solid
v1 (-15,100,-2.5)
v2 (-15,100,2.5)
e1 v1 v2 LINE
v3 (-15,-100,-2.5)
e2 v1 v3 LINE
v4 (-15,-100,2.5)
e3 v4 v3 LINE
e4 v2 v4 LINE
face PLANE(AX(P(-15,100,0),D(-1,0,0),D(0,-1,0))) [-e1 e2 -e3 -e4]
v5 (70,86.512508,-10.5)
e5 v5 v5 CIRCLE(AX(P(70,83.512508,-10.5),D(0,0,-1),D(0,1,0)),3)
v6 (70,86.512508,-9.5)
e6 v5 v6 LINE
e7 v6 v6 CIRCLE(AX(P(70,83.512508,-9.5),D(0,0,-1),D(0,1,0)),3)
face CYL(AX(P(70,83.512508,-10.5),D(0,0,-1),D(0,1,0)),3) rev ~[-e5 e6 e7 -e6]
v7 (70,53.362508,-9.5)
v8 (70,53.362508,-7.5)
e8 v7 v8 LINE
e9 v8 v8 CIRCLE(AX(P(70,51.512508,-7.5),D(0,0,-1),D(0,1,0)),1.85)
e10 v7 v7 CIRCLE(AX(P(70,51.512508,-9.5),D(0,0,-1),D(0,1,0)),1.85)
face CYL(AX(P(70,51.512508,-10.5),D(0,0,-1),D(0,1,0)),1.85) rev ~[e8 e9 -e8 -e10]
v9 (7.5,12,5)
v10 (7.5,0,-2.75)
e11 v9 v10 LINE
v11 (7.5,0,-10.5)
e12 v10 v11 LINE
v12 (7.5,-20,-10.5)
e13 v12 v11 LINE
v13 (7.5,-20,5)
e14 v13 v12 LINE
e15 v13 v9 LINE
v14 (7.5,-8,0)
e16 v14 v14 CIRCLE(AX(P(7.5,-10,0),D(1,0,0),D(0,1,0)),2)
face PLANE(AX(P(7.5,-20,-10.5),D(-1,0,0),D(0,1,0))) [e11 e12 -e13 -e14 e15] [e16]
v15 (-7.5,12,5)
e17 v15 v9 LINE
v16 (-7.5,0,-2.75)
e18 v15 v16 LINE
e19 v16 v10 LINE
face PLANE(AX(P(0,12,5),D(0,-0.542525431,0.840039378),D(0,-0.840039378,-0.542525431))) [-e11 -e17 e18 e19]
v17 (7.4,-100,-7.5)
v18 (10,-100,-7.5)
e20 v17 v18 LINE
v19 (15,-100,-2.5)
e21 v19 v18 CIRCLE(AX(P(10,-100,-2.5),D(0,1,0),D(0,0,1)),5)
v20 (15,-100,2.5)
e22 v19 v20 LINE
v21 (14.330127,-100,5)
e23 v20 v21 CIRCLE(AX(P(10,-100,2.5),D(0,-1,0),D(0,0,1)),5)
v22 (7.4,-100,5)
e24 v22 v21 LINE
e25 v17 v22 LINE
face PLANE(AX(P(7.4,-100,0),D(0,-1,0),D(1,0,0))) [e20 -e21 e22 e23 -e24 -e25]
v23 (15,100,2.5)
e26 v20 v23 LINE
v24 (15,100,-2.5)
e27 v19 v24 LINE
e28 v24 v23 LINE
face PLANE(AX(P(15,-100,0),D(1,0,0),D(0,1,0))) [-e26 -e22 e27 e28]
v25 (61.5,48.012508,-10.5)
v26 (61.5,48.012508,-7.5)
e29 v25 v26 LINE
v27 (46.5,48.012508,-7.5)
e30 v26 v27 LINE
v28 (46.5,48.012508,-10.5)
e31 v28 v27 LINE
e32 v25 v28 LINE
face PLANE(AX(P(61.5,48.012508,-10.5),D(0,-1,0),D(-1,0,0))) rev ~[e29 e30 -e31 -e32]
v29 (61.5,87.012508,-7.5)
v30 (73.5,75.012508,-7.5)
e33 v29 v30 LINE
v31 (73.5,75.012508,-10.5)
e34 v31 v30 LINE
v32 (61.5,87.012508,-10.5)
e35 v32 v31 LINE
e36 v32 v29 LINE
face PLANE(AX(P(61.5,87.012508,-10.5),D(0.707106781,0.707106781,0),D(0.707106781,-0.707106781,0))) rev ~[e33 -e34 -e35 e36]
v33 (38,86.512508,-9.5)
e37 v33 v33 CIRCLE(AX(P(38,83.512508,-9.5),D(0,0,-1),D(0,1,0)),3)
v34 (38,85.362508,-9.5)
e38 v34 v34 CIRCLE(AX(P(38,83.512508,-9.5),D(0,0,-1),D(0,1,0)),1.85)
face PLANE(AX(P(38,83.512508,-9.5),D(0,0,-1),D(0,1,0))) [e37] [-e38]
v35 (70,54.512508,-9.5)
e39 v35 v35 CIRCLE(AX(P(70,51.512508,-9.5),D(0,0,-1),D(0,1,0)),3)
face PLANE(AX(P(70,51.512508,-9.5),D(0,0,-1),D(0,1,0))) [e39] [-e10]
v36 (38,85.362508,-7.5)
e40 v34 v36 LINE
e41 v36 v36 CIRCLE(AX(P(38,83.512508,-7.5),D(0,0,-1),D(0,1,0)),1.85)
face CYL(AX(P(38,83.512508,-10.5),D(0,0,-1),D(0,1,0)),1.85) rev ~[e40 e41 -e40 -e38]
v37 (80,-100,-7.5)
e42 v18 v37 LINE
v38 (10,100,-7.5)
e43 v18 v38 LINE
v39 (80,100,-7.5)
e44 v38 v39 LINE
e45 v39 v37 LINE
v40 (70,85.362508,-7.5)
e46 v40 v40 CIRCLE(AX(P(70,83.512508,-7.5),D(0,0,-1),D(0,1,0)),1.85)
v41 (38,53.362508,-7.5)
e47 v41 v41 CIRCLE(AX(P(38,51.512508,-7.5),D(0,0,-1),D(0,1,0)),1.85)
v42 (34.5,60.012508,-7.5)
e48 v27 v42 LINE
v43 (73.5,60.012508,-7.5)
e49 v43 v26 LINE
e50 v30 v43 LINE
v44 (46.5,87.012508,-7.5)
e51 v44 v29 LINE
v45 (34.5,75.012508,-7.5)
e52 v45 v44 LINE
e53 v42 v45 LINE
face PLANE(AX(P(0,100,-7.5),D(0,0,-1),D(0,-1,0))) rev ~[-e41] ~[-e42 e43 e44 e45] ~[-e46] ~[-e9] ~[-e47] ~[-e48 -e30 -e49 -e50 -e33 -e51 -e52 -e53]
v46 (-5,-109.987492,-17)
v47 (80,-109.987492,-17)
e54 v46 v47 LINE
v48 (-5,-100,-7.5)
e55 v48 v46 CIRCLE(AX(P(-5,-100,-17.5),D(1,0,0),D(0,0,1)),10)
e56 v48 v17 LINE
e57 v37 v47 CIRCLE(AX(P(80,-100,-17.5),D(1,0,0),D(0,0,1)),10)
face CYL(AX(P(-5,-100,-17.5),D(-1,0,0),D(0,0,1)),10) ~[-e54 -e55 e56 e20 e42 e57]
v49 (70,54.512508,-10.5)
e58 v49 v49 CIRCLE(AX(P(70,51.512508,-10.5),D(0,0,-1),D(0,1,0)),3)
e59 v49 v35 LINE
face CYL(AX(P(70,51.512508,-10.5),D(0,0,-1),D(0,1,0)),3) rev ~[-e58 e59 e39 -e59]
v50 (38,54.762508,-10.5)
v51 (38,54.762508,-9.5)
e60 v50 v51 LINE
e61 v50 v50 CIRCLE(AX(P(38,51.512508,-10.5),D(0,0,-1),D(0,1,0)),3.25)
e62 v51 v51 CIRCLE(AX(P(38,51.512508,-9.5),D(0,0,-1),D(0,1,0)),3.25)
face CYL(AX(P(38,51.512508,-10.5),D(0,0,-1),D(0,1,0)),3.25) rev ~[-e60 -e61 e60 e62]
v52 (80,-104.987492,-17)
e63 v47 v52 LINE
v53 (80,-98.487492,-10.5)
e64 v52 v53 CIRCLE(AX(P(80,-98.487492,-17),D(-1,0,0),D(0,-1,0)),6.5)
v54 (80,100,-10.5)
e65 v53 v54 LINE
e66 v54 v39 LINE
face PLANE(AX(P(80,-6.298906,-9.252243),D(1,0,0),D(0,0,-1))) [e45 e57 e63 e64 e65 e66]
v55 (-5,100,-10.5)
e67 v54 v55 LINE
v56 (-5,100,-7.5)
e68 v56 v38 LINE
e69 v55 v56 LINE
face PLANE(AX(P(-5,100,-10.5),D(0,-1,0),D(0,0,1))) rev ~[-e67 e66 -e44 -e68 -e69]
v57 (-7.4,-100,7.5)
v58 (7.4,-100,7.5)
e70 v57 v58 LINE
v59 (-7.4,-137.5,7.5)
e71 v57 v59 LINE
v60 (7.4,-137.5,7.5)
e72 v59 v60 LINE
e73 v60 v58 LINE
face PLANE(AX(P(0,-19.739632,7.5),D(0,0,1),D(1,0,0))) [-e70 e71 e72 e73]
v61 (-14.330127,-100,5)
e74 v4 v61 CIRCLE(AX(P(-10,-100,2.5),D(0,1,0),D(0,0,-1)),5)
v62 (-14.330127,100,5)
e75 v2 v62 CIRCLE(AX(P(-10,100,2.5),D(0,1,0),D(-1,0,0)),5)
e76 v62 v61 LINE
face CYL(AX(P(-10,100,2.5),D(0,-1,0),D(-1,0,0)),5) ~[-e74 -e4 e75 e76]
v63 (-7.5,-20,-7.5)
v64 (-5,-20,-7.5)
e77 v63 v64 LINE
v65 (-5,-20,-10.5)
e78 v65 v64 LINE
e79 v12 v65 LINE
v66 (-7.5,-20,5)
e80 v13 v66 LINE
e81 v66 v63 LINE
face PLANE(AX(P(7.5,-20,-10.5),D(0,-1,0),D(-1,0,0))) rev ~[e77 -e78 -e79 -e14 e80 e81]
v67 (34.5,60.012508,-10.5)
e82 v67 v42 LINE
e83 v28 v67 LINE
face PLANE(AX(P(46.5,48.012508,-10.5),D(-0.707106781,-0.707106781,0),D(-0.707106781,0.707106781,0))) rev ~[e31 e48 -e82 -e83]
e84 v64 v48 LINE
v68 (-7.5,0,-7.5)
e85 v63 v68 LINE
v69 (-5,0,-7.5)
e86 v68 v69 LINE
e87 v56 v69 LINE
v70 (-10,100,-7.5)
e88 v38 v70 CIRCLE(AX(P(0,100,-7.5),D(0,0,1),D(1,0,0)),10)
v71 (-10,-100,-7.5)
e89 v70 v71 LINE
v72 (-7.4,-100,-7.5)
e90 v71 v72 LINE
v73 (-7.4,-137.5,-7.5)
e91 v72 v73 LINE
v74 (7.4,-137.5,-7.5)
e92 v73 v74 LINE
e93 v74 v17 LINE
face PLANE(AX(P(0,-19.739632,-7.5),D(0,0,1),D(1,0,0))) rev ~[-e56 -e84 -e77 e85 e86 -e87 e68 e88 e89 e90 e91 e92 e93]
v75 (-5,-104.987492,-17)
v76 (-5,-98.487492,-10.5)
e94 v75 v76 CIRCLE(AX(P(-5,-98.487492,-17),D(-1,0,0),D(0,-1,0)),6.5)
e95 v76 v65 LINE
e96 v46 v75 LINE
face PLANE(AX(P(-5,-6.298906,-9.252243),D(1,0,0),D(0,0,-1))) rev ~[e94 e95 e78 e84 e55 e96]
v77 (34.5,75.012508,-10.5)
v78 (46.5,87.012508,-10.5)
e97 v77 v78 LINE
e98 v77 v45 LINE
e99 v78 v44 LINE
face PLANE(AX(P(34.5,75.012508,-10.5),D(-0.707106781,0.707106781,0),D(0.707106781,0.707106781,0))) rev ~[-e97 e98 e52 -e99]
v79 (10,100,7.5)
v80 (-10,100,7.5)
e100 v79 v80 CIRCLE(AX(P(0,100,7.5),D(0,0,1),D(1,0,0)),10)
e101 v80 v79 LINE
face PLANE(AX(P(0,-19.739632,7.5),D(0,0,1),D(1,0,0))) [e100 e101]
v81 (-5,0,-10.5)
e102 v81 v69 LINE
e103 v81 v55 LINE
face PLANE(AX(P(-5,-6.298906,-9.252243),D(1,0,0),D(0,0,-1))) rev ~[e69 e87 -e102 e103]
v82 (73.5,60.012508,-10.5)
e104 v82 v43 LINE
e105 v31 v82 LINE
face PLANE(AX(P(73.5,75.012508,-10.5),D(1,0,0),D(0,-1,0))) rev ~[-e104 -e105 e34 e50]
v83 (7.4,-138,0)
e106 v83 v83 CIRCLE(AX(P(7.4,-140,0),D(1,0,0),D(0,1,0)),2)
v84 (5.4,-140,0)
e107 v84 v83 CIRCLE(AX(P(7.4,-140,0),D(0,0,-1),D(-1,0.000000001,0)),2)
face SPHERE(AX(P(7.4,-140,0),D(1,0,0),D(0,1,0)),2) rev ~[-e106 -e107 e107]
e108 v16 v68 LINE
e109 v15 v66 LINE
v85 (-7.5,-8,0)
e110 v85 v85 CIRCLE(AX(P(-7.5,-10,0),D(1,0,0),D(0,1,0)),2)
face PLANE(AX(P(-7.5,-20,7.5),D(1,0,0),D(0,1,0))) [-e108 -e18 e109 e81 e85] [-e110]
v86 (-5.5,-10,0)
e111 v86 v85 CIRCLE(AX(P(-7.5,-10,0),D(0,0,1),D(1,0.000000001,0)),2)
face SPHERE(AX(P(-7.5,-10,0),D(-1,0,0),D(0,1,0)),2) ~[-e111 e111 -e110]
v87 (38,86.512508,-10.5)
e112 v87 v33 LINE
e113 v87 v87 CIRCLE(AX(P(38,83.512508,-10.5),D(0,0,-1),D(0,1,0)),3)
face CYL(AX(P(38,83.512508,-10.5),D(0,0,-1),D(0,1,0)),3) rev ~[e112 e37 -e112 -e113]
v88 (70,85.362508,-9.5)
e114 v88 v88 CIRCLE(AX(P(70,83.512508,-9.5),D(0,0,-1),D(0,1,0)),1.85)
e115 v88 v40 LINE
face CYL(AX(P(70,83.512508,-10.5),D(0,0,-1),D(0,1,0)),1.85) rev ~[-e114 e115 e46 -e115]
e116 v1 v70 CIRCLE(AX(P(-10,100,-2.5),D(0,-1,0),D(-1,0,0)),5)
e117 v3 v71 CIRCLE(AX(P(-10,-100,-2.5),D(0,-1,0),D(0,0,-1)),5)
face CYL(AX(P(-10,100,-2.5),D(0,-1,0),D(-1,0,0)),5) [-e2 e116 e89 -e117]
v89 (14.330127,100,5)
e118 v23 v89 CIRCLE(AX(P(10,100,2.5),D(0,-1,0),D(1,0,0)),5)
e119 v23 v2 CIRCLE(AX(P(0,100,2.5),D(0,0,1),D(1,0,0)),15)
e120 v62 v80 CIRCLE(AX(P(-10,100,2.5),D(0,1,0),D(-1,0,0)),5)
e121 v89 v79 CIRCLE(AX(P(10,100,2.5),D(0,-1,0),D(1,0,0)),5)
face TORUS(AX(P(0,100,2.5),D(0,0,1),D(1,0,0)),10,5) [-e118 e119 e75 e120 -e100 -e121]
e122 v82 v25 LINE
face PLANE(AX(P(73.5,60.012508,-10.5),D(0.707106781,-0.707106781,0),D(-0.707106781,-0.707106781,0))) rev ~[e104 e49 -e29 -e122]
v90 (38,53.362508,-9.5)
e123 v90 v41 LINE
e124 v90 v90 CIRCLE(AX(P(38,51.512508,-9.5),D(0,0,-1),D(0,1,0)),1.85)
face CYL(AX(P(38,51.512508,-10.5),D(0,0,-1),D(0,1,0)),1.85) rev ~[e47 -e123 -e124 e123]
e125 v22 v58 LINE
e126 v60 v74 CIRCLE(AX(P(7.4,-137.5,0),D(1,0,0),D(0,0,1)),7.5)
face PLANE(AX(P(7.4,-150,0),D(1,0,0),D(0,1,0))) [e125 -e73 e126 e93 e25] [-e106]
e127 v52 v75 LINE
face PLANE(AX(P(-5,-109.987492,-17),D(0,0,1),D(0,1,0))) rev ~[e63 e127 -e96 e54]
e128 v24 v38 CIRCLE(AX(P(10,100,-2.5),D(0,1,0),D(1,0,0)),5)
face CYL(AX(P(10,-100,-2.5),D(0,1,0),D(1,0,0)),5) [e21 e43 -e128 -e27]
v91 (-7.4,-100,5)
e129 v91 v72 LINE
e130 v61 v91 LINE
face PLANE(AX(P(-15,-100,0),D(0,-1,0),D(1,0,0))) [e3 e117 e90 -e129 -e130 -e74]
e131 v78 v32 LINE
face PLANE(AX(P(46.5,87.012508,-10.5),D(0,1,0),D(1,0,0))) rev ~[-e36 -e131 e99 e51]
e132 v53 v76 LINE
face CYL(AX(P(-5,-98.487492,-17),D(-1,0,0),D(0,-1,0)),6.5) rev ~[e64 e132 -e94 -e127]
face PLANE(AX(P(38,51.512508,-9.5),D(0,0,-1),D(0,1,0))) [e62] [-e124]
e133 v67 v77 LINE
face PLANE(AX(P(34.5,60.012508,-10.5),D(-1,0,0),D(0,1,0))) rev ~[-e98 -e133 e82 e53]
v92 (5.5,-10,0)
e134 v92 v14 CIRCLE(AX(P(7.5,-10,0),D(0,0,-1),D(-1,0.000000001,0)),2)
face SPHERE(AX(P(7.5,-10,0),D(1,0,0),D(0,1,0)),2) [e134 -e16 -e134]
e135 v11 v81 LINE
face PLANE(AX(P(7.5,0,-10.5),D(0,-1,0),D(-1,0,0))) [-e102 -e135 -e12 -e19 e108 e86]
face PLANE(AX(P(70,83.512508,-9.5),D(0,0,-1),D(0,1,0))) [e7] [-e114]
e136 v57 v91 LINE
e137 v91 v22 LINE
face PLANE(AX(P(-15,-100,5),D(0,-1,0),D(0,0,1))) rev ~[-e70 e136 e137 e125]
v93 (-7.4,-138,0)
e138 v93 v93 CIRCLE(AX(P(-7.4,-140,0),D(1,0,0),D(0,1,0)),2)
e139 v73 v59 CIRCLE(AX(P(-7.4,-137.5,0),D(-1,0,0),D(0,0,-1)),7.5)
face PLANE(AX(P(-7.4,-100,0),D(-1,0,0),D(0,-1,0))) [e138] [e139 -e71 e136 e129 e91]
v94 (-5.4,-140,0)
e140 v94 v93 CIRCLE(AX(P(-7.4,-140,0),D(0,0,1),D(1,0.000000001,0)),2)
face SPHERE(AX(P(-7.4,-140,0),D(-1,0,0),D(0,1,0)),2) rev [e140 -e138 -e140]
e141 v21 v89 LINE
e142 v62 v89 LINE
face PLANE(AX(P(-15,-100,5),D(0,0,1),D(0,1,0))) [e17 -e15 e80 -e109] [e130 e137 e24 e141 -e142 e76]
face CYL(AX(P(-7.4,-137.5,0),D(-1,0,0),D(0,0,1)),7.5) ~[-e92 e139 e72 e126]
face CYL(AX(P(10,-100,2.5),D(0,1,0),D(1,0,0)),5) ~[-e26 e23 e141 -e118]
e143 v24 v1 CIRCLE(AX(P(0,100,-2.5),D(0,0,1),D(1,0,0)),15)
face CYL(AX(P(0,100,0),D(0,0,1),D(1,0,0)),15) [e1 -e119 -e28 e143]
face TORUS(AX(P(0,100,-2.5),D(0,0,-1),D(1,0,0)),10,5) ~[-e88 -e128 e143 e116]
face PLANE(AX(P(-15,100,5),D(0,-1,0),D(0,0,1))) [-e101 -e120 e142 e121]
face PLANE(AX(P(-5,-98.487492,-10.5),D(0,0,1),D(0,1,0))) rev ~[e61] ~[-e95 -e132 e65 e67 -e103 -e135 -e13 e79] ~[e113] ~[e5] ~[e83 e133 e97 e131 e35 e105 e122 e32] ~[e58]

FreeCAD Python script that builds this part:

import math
import FreeCAD as App
import Part
import Sketcher

V = App.Vector


def edges_at(feature, points):
    """Names of the edges that pass closest to the given points."""
    edges = feature.Shape.Edges
    near = lambda p: min(range(len(edges)), key=lambda i: edges[i].distToShape(Part.Vertex(*p))[0])
    return sorted({f"Edge{near(p) + 1}" for p in points})


def add_polygon(sketch, points):
    """Adds a closed chain of lines whose ends are joined by coincident constraints."""
    first, n = sketch.GeometryCount, len(points)
    for a, b in zip(points, points[1:] + points[:1]):
        sketch.addGeometry(Part.LineSegment(App.Vector(*a, 0), App.Vector(*b, 0)), False)
    for i in range(n):
        sketch.addConstraint(Sketcher.Constraint("Coincident", first + i, 2, first + (i + 1) % n, 1))

doc = App.newDocument("Part")
body = doc.addObject("PartDesign::Body", "Body")

# Sketch on XY plane
sketch1 = body.newObject("Sketcher::SketchObject", "Sketch")
sketch1.AttachmentSupport = (doc.getObject("XY_Plane"), [""])
sketch1.MapMode = "FlatFace"
sketch1.addGeometry(Part.LineSegment(V(-7.4, -150, 0), V(7.4, -150, 0)), False)
sketch1.addGeometry(Part.LineSegment(V(7.4, -150, 0), V(7.4, -100, 0)), False)
sketch1.addGeometry(Part.LineSegment(V(7.4, -100, 0), V(15, -100, 0)), False)
sketch1.addGeometry(Part.LineSegment(V(15, -100, 0), V(15, 100, 0)), False)
sketch1.addGeometry(Part.ArcOfCircle(Part.Circle(V(0, 100, 0), V(0, 0, 1), 15), math.radians(0), math.radians(180)), False)
sketch1.addGeometry(Part.LineSegment(V(-15, 100, 0), V(-15, -100, 0)), False)
sketch1.addGeometry(Part.LineSegment(V(-15, -100, 0), V(-7.4, -100, 0)), False)
sketch1.addGeometry(Part.LineSegment(V(-7.4, -100, 0), V(-7.4, -150, 0)), False)
sketch1.addConstraint(Sketcher.Constraint("Coincident", 0, 2, 1, 1))
sketch1.addConstraint(Sketcher.Constraint("Coincident", 1, 2, 2, 1))
sketch1.addConstraint(Sketcher.Constraint("Coincident", 2, 2, 3, 1))
sketch1.addConstraint(Sketcher.Constraint("Tangent", 3, 2, 4, 1))
sketch1.addConstraint(Sketcher.Constraint("Tangent", 4, 2, 5, 1))
sketch1.addConstraint(Sketcher.Constraint("Coincident", 5, 2, 6, 1))
sketch1.addConstraint(Sketcher.Constraint("Coincident", 6, 2, 7, 1))
sketch1.addConstraint(Sketcher.Constraint("Coincident", 7, 2, 0, 1))
sketch1.addConstraint(Sketcher.Constraint("Horizontal", 0))
sketch1.addConstraint(Sketcher.Constraint("Vertical", 1))
sketch1.addConstraint(Sketcher.Constraint("Horizontal", 2))
sketch1.addConstraint(Sketcher.Constraint("Vertical", 3))
sketch1.addConstraint(Sketcher.Constraint("Vertical", 5))
sketch1.addConstraint(Sketcher.Constraint("Horizontal", 6))
sketch1.addConstraint(Sketcher.Constraint("Vertical", 7))
sketch1.addConstraint(Sketcher.Constraint("Symmetric", 2, 2, 4, 2, -1, 1))
sketch1.addConstraint(Sketcher.Constraint("Symmetric", 1, 2, 6, 2, -2))
sketch1.addConstraint(Sketcher.Constraint("Radius", 4, 15.0))
sketch1.addConstraint(Sketcher.Constraint("DistanceY", 1, 1, 1, 2, 50.0))
sketch1.addConstraint(Sketcher.Constraint("DistanceY", 3, 1, 3, 2, 200.0))
sketch1.addConstraint(Sketcher.Constraint("DistanceX", 0, 1, 0, 2, 14.8))
pad1 = body.newObject("PartDesign::Pad", "Pad")
pad1.Profile = sketch1
pad1.Length = 15
pad1.Midplane = True
doc.recompute()

fillet = body.newObject("PartDesign::Fillet", "Fillet")
fillet.Base = (pad1, edges_at(pad1, [
    (7.4, -150, 0),
    (-7.4, -150, 0),
    (15, 0, 7.5),
    (0, 115, 7.5),
    (-15, 0, 7.5),
    (-15, 0, -7.5),
    (0, 115, -7.5),
    (15, 0, -7.5),
]))
fillet.Radius = 5

# Sketch on XY plane
sketch2 = body.newObject("Sketcher::SketchObject", "Sketch001")
sketch2.AttachmentSupport = (doc.getObject("XY_Plane"), [""])
sketch2.MapMode = "FlatFace"
sketch2.AttachmentOffset = App.Placement(V(0, 0, 7.5), App.Rotation())
add_polygon(sketch2, [(-7.5, 0), (-7.5, -20), (7.5, -20), (7.5, 0)])  # lines 0-3
sketch2.addConstraint(Sketcher.Constraint("Vertical", 0))
sketch2.addConstraint(Sketcher.Constraint("Horizontal", 1))
sketch2.addConstraint(Sketcher.Constraint("Vertical", 2))
sketch2.addConstraint(Sketcher.Constraint("Horizontal", 3))
sketch2.addConstraint(Sketcher.Constraint("Symmetric", 2, 2, 3, 2, -1, 1))
sketch2.addConstraint(Sketcher.Constraint("DistanceX", 1, 1, 1, 2, 15.0))
sketch2.addConstraint(Sketcher.Constraint("DistanceY", 0, 2, 0, 1, 20.0))
pocket1 = body.newObject("PartDesign::Pocket", "Pocket")
pocket1.Profile = sketch2
pocket1.Type = "ThroughAll"

# Sketch on XY plane
sketch3 = body.newObject("Sketcher::SketchObject", "Sketch002")
sketch3.AttachmentSupport = (doc.getObject("XY_Plane"), [""])
sketch3.MapMode = "FlatFace"
sketch3.addGeometry(Part.LineSegment(V(-7.5, -10, 0), V(-5.5, -10, 0)), False)
sketch3.addGeometry(Part.ArcOfCircle(Part.Circle(V(-7.5, -10, 0), V(0, 0, 1), 2), math.radians(0), math.radians(90)), False)
sketch3.addGeometry(Part.LineSegment(V(-7.5, -8, 0), V(-7.5, -10, 0)), False)
sketch3.addGeometry(Part.LineSegment(V(5.5, -10, 0), V(7.5, -10, 0)), False)
sketch3.addGeometry(Part.LineSegment(V(7.5, -10, 0), V(7.5, -8, 0)), False)
sketch3.addGeometry(Part.ArcOfCircle(Part.Circle(V(7.5, -10, 0), V(0, 0, 1), 2), math.radians(90), math.radians(180)), False)
sketch3.addGeometry(Part.LineSegment(V(-7.5, -10, 0), V(7.5, -10, 0)), True)  # axis
sketch3.addConstraint(Sketcher.Constraint("Coincident", 0, 2, 1, 1))
sketch3.addConstraint(Sketcher.Constraint("Coincident", 1, 2, 2, 1))
sketch3.addConstraint(Sketcher.Constraint("Coincident", 2, 2, 0, 1))
sketch3.addConstraint(Sketcher.Constraint("Coincident", 3, 2, 4, 1))
sketch3.addConstraint(Sketcher.Constraint("Coincident", 4, 2, 5, 1))
sketch3.addConstraint(Sketcher.Constraint("Coincident", 5, 2, 3, 1))
sketch3.addConstraint(Sketcher.Constraint("Horizontal", 0))
sketch3.addConstraint(Sketcher.Constraint("Vertical", 2))
sketch3.addConstraint(Sketcher.Constraint("Horizontal", 3))
sketch3.addConstraint(Sketcher.Constraint("Vertical", 4))
sketch3.addConstraint(Sketcher.Constraint("Horizontal", 6))
sketch3.addConstraint(Sketcher.Constraint("Coincident", 2, 2, 1, 3))
sketch3.addConstraint(Sketcher.Constraint("Coincident", 3, 2, 5, 3))
sketch3.addConstraint(Sketcher.Constraint("Coincident", 6, 1, 1, 3))
sketch3.addConstraint(Sketcher.Constraint("Coincident", 6, 2, 5, 3))
sketch3.addConstraint(Sketcher.Constraint("Equal", 1, 5))
sketch3.addConstraint(Sketcher.Constraint("Radius", 1, 2.0))
sketch3.addConstraint(Sketcher.Constraint("DistanceX", 6, 1, 6, 2, 15.0))
sketch3.addConstraint(Sketcher.Constraint("DistanceY", 1, 3, -1, 1, 10.0))
sketch3.addConstraint(Sketcher.Constraint("DistanceX", 1, 3, -1, 1, 7.5))
revolution = body.newObject("PartDesign::Revolution", "Revolution")
revolution.Profile = sketch3
revolution.ReferenceAxis = (sketch3, ["Axis0"])
revolution.Angle = 360

# Sketch on XY plane
sketch4 = body.newObject("Sketcher::SketchObject", "Sketch003")
sketch4.AttachmentSupport = (doc.getObject("XY_Plane"), [""])
sketch4.MapMode = "FlatFace"
sketch4.addGeometry(Part.LineSegment(V(-7.4, -138, 0), V(-7.4, -140, 0)), False)
sketch4.addGeometry(Part.LineSegment(V(-7.4, -140, 0), V(-5.4, -140, 0)), False)
sketch4.addGeometry(Part.ArcOfCircle(Part.Circle(V(-7.4, -140, 0), V(0, 0, 1), 2), math.radians(0), math.radians(90)), False)
sketch4.addGeometry(Part.LineSegment(V(7.4, -140, 0), V(7.4, -138, 0)), False)
sketch4.addGeometry(Part.ArcOfCircle(Part.Circle(V(7.4, -140, 0), V(0, 0, 1), 2), math.radians(90), math.radians(180)), False)
sketch4.addGeometry(Part.LineSegment(V(5.4, -140, 0), V(7.4, -140, 0)), False)
sketch4.addGeometry(Part.LineSegment(V(-7.4, -140, 0), V(7.4, -140, 0)), True)  # axis
sketch4.addConstraint(Sketcher.Constraint("Coincident", 0, 2, 1, 1))
sketch4.addConstraint(Sketcher.Constraint("Coincident", 1, 2, 2, 1))
sketch4.addConstraint(Sketcher.Constraint("Coincident", 2, 2, 0, 1))
sketch4.addConstraint(Sketcher.Constraint("Coincident", 3, 2, 4, 1))
sketch4.addConstraint(Sketcher.Constraint("Coincident", 4, 2, 5, 1))
sketch4.addConstraint(Sketcher.Constraint("Coincident", 5, 2, 3, 1))
sketch4.addConstraint(Sketcher.Constraint("Vertical", 0))
sketch4.addConstraint(Sketcher.Constraint("Horizontal", 1))
sketch4.addConstraint(Sketcher.Constraint("Vertical", 3))
sketch4.addConstraint(Sketcher.Constraint("Horizontal", 5))
sketch4.addConstraint(Sketcher.Constraint("Horizontal", 6))
sketch4.addConstraint(Sketcher.Constraint("Coincident", 0, 2, 2, 3))
sketch4.addConstraint(Sketcher.Constraint("Coincident", 5, 2, 4, 3))
sketch4.addConstraint(Sketcher.Constraint("Coincident", 6, 1, 2, 3))
sketch4.addConstraint(Sketcher.Constraint("Coincident", 6, 2, 4, 3))
sketch4.addConstraint(Sketcher.Constraint("Equal", 2, 4))
sketch4.addConstraint(Sketcher.Constraint("Radius", 2, 2.0))
sketch4.addConstraint(Sketcher.Constraint("DistanceX", 6, 1, 6, 2, 14.8))
sketch4.addConstraint(Sketcher.Constraint("DistanceY", 2, 3, -1, 1, 140.0))
sketch4.addConstraint(Sketcher.Constraint("DistanceX", 2, 3, -1, 1, 7.4))
groove = body.newObject("PartDesign::Groove", "Groove")
groove.Profile = sketch4
groove.ReferenceAxis = (sketch4, ["Axis0"])
groove.Angle = 360

# Sketch on YZ plane
sketch5 = body.newObject("Sketcher::SketchObject", "Sketch004")
sketch5.AttachmentSupport = (doc.getObject("YZ_Plane"), [""])
sketch5.MapMode = "FlatFace"
sketch5.AttachmentOffset = App.Placement(V(0, 0, -7.4), App.Rotation())
sketch5.addGeometry(Part.LineSegment(V(-137.5, -7.5, 0), V(-150, -7.5, 0)), False)
sketch5.addGeometry(Part.LineSegment(V(-150, -7.5, 0), V(-150, 7.5, 0)), False)
sketch5.addGeometry(Part.LineSegment(V(-150, 7.5, 0), V(-137.5, 7.5, 0)), False)
sketch5.addGeometry(Part.ArcOfCircle(Part.Circle(V(-137.5, 0, 0), V(0, 0, 1), 7.5), math.radians(90), math.radians(270)), False)
sketch5.addConstraint(Sketcher.Constraint("Coincident", 0, 2, 1, 1))
sketch5.addConstraint(Sketcher.Constraint("Coincident", 1, 2, 2, 1))
sketch5.addConstraint(Sketcher.Constraint("Tangent", 2, 2, 3, 1))
sketch5.addConstraint(Sketcher.Constraint("Tangent", 3, 2, 0, 1))
sketch5.addConstraint(Sketcher.Constraint("Horizontal", 0))
sketch5.addConstraint(Sketcher.Constraint("Vertical", 1))
sketch5.addConstraint(Sketcher.Constraint("Horizontal", 2))
sketch5.addConstraint(Sketcher.Constraint("PointOnObject", 3, 3, -1))
sketch5.addConstraint(Sketcher.Constraint("Radius", 3, 7.5))
sketch5.addConstraint(Sketcher.Constraint("DistanceX", 0, 2, 0, 1, 12.5))
sketch5.addConstraint(Sketcher.Constraint("DistanceX", 0, 2, -1, 1, 150.0))
pocket2 = body.newObject("PartDesign::Pocket", "Pocket001")
pocket2.Profile = sketch5
pocket2.Type = "ThroughAll"
pocket2.Reversed = True

# Sketch on YZ plane
sketch6 = body.newObject("Sketcher::SketchObject", "Sketch005")
sketch6.AttachmentSupport = (doc.getObject("YZ_Plane"), [""])
sketch6.MapMode = "FlatFace"
sketch6.addGeometry(Part.LineSegment(V(-109.987492, -17, 0), V(-104.987492, -17, 0)), False)
sketch6.addGeometry(Part.ArcOfCircle(Part.Circle(V(-98.487492, -17, 0), V(0, 0, 1), 6.5), math.radians(90), math.radians(180)), False)
sketch6.addGeometry(Part.LineSegment(V(-98.487492, -10.5, 0), V(100, -10.5, 0)), False)
sketch6.addGeometry(Part.LineSegment(V(100, -10.5, 0), V(100, -7.5, 0)), False)
sketch6.addGeometry(Part.LineSegment(V(100, -7.5, 0), V(-100, -7.5, 0)), False)
sketch6.addGeometry(Part.ArcOfCircle(Part.Circle(V(-100, -17.5, 0), V(0, 0, 1), 10), math.radians(90), math.radians(177.134016)), False)
sketch6.addConstraint(Sketcher.Constraint("Coincident", 0, 2, 1, 2))
sketch6.addConstraint(Sketcher.Constraint("Tangent", 1, 1, 2, 1))
sketch6.addConstraint(Sketcher.Constraint("Coincident", 2, 2, 3, 1))
sketch6.addConstraint(Sketcher.Constraint("Coincident", 3, 2, 4, 1))
sketch6.addConstraint(Sketcher.Constraint("Tangent", 4, 2, 5, 1))
sketch6.addConstraint(Sketcher.Constraint("Coincident", 5, 2, 0, 1))
sketch6.addConstraint(Sketcher.Constraint("Horizontal", 0))
sketch6.addConstraint(Sketcher.Constraint("Horizontal", 2))
sketch6.addConstraint(Sketcher.Constraint("Vertical", 3))
sketch6.addConstraint(Sketcher.Constraint("Horizontal", 4))
sketch6.addConstraint(Sketcher.Constraint("Horizontal", 1, 3, 0, 2))
sketch6.addConstraint(Sketcher.Constraint("Radius", 5, 10.0))
sketch6.addConstraint(Sketcher.Constraint("Radius", 1, 6.5))
sketch6.addConstraint(Sketcher.Constraint("DistanceX", 0, 1, 0, 2, 5.0))
sketch6.addConstraint(Sketcher.Constraint("DistanceX", 4, 2, 4, 1, 200.0))
sketch6.addConstraint(Sketcher.Constraint("DistanceY", 3, 1, 3, 2, 3.0))
sketch6.addConstraint(Sketcher.Constraint("DistanceY", 1, 3, -1, 1, 17.0))
sketch6.addConstraint(Sketcher.Constraint("DistanceX", 5, 3, -1, 1, 100.0))
pad2 = body.newObject("PartDesign::Pad", "Pad001")
pad2.Profile = sketch6
pad2.Length = 80

# Sketch on YZ plane
sketch7 = body.newObject("Sketcher::SketchObject", "Sketch006")
sketch7.AttachmentSupport = (doc.getObject("YZ_Plane"), [""])
sketch7.MapMode = "FlatFace"
sketch7.AttachmentOffset = App.Placement(V(0, 0, -5), App.Rotation())
sketch7.addGeometry(Part.LineSegment(V(100, -7.5, 0), V(100, -10.5, 0)), False)
sketch7.addGeometry(Part.LineSegment(V(100, -10.5, 0), V(-98.487492, -10.5, 0)), False)
sketch7.addGeometry(Part.ArcOfCircle(Part.Circle(V(-98.487492, -17, 0), V(0, 0, 1), 6.5), math.radians(90), math.radians(180)), False)
sketch7.addGeometry(Part.LineSegment(V(-104.987492, -17, 0), V(-109.987492, -17, 0)), False)
sketch7.addGeometry(Part.ArcOfCircle(Part.Circle(V(-100, -17.5, 0), V(0, 0, 1), 10), math.radians(90), math.radians(177.134016)), False)
sketch7.addGeometry(Part.LineSegment(V(-100, -7.5, 0), V(100, -7.5, 0)), False)
sketch7.addConstraint(Sketcher.Constraint("Coincident", 0, 2, 1, 1))
sketch7.addConstraint(Sketcher.Constraint("Tangent", 1, 2, 2, 1))
sketch7.addConstraint(Sketcher.Constraint("Coincident", 2, 2, 3, 1))
sketch7.addConstraint(Sketcher.Constraint("Coincident", 3, 2, 4, 2))
sketch7.addConstraint(Sketcher.Constraint("Tangent", 4, 1, 5, 1))
sketch7.addConstraint(Sketcher.Constraint("Coincident", 5, 2, 0, 1))
sketch7.addConstraint(Sketcher.Constraint("Vertical", 0))
sketch7.addConstraint(Sketcher.Constraint("Horizontal", 1))
sketch7.addConstraint(Sketcher.Constraint("Horizontal", 3))
sketch7.addConstraint(Sketcher.Constraint("Horizontal", 5))
sketch7.addConstraint(Sketcher.Constraint("Radius", 4, 10.0))
sketch7.addConstraint(Sketcher.Constraint("Radius", 2, 6.5))
sketch7.addConstraint(Sketcher.Constraint("DistanceX", 3, 2, 3, 1, 5.0))
sketch7.addConstraint(Sketcher.Constraint("DistanceX", 5, 1, 5, 2, 200.0))
sketch7.addConstraint(Sketcher.Constraint("DistanceY", 0, 2, 0, 1, 3.0))
sketch7.addConstraint(Sketcher.Constraint("DistanceY", 2, 3, -1, 1, 17.0))
sketch7.addConstraint(Sketcher.Constraint("DistanceX", 4, 3, -1, 1, 100.0))
sketch7.addConstraint(Sketcher.Constraint("DistanceY", 2, 2, -1, 1, 17.0))
pad3 = body.newObject("PartDesign::Pad", "Pad002")
pad3.Profile = sketch7
pad3.Length = 5

# Sketch on XY plane
sketch8 = body.newObject("Sketcher::SketchObject", "Sketch007")
sketch8.AttachmentSupport = (doc.getObject("XY_Plane"), [""])
sketch8.MapMode = "FlatFace"
sketch8.AttachmentOffset = App.Placement(V(0, 0, -10.5), App.Rotation())
add_polygon(sketch8, [(7.5, 0), (7.5, -20), (-5, -20), (-5, 0)])  # lines 0-3
sketch8.addConstraint(Sketcher.Constraint("Vertical", 0))
sketch8.addConstraint(Sketcher.Constraint("Horizontal", 1))
sketch8.addConstraint(Sketcher.Constraint("Vertical", 2))
sketch8.addConstraint(Sketcher.Constraint("Horizontal", 3))
sketch8.addConstraint(Sketcher.Constraint("PointOnObject", 2, 2, -1))
sketch8.addConstraint(Sketcher.Constraint("DistanceY", 0, 2, 0, 1, 20.0))
sketch8.addConstraint(Sketcher.Constraint("DistanceX", 1, 2, 1, 1, 12.5))
sketch8.addConstraint(Sketcher.Constraint("DistanceX", 1, 2, -1, 1, 5.0))
pocket3 = body.newObject("PartDesign::Pocket", "Pocket002")
pocket3.Profile = sketch8
pocket3.Length = 3
pocket3.Reversed = True

# Sketch on YZ plane
sketch9 = body.newObject("Sketcher::SketchObject", "Sketch008")
sketch9.AttachmentSupport = (doc.getObject("YZ_Plane"), [""])
sketch9.MapMode = "FlatFace"
sketch9.AttachmentOffset = App.Placement(V(0, 0, -15), App.Rotation())
add_polygon(sketch9, [(100, 5), (-100, 5), (-100, 7.5), (100, 7.5)])  # lines 0-3
sketch9.addConstraint(Sketcher.Constraint("Horizontal", 0))
sketch9.addConstraint(Sketcher.Constraint("Vertical", 1))
sketch9.addConstraint(Sketcher.Constraint("Horizontal", 2))
sketch9.addConstraint(Sketcher.Constraint("Vertical", 3))
sketch9.addConstraint(Sketcher.Constraint("DistanceX", 0, 2, 0, 1, 200.0))
sketch9.addConstraint(Sketcher.Constraint("DistanceY", 1, 1, 1, 2, 2.5))
sketch9.addConstraint(Sketcher.Constraint("DistanceX", 0, 2, -1, 1, 100.0))
sketch9.addConstraint(Sketcher.Constraint("DistanceY", -1, 1, 0, 2, 5.0))
pocket4 = body.newObject("PartDesign::Pocket", "Pocket003")
pocket4.Profile = sketch9
pocket4.Type = "ThroughAll"
pocket4.Reversed = True

# Sketch on XY plane
sketch10 = body.newObject("Sketcher::SketchObject", "Sketch009")
sketch10.AttachmentSupport = (doc.getObject("XY_Plane"), [""])
sketch10.MapMode = "FlatFace"
sketch10.AttachmentOffset = App.Placement(V(0, 0, -10.5), App.Rotation())
sketch10.addGeometry(Part.Circle(V(38, 83.512508, 0), V(0, 0, 1), 1.85), False)  # 0
sketch10.addGeometry(Part.Circle(V(38, 51.512508, 0), V(0, 0, 1), 1.85), False)  # 1
sketch10.addGeometry(Part.Circle(V(70, 83.512508, 0), V(0, 0, 1), 1.85), False)  # 2
sketch10.addGeometry(Part.Circle(V(70, 51.512508, 0), V(0, 0, 1), 1.85), False)  # 3
add_polygon(sketch10, [(46.5, 87.012508), (61.5, 87.012508), (73.5, 75.012508), (73.5, 60.012508), (61.5, 48.012508), (46.5, 48.012508), (34.5, 60.012508), (34.5, 75.012508)])  # lines 4-11
sketch10.addConstraint(Sketcher.Constraint("Horizontal", 4))
sketch10.addConstraint(Sketcher.Constraint("Vertical", 6))
sketch10.addConstraint(Sketcher.Constraint("Horizontal", 8))
sketch10.addConstraint(Sketcher.Constraint("Vertical", 10))
sketch10.addConstraint(Sketcher.Constraint("Equal", 0, 1))
sketch10.addConstraint(Sketcher.Constraint("Equal", 1, 2))
sketch10.addConstraint(Sketcher.Constraint("Equal", 2, 3))
sketch10.addConstraint(Sketcher.Constraint("Perpendicular", 5, 7))
sketch10.addConstraint(Sketcher.Constraint("Perpendicular", 7, 9))
sketch10.addConstraint(Sketcher.Constraint("Perpendicular", 9, 11))
sketch10.addConstraint(Sketcher.Constraint("Horizontal", 0, 3, 2, 3))
sketch10.addConstraint(Sketcher.Constraint("Horizontal", 1, 3, 3, 3))
sketch10.addConstraint(Sketcher.Constraint("Horizontal", 6, 2, 9, 2))
sketch10.addConstraint(Sketcher.Constraint("Horizontal", 5, 2, 10, 2))
sketch10.addConstraint(Sketcher.Constraint("Vertical", 0, 3, 1, 3))
sketch10.addConstraint(Sketcher.Constraint("Vertical", 2, 3, 3, 3))
sketch10.addConstraint(Sketcher.Constraint("Vertical", 4, 2, 7, 2))
sketch10.addConstraint(Sketcher.Constraint("Vertical", 8, 2, 11, 2))
sketch10.addConstraint(Sketcher.Constraint("Equal", 8, 6))
sketch10.addConstraint(Sketcher.Constraint("Diameter", 0, 3.7))
sketch10.addConstraint(Sketcher.Constraint("DistanceX", 4, 1, 4, 2, 15.0))
sketch10.addConstraint(Sketcher.Constraint("DistanceX", -1, 1, 0, 3, 38.0))
sketch10.addConstraint(Sketcher.Constraint("DistanceX", -1, 1, 2, 3, 70.0))
sketch10.addConstraint(Sketcher.Constraint("DistanceY", 1, 3, 0, 3, 32.0))
sketch10.addConstraint(Sketcher.Constraint("DistanceX", 4, 2, 5, 2, 12.0))
sketch10.addConstraint(Sketcher.Constraint("DistanceX", -1, 1, 4, 2, 61.5))
sketch10.addConstraint(Sketcher.Constraint("DistanceY", 2, 3, 4, 2, 3.5))
sketch10.addConstraint(Sketcher.Constraint("DistanceY", -1, 1, 0, 3, 83.512508))
pocket5 = body.newObject("PartDesign::Pocket", "Pocket004")
pocket5.Profile = sketch10
pocket5.Type = "ThroughAll"
pocket5.Reversed = True

# Sketch on XY plane
sketch11 = body.newObject("Sketcher::SketchObject", "Sketch010")
sketch11.AttachmentSupport = (doc.getObject("XY_Plane"), [""])
sketch11.MapMode = "FlatFace"
sketch11.AttachmentOffset = App.Placement(V(0, 0, -10.5), App.Rotation())
sketch11.addGeometry(Part.Circle(V(38, 83.512508, 0), V(0, 0, 1), 3), False)
sketch11.addGeometry(Part.Circle(V(70, 83.512508, 0), V(0, 0, 1), 3), False)
sketch11.addGeometry(Part.Circle(V(70, 51.512508, 0), V(0, 0, 1), 3), False)
sketch11.addGeometry(Part.Circle(V(38, 51.512508, 0), V(0, 0, 1), 3.25), False)
sketch11.addConstraint(Sketcher.Constraint("Equal", 0, 1))
sketch11.addConstraint(Sketcher.Constraint("Equal", 1, 2))
sketch11.addConstraint(Sketcher.Constraint("Horizontal", 0, 3, 1, 3))
sketch11.addConstraint(Sketcher.Constraint("Horizontal", 2, 3, 3, 3))
sketch11.addConstraint(Sketcher.Constraint("Vertical", 1, 3, 2, 3))
sketch11.addConstraint(Sketcher.Constraint("Vertical", 0, 3, 3, 3))
sketch11.addConstraint(Sketcher.Constraint("Diameter", 0, 6.0))
sketch11.addConstraint(Sketcher.Constraint("Diameter", 3, 6.5))
sketch11.addConstraint(Sketcher.Constraint("DistanceX", -1, 1, 0, 3, 38.0))
sketch11.addConstraint(Sketcher.Constraint("DistanceX", -1, 1, 1, 3, 70.0))
sketch11.addConstraint(Sketcher.Constraint("DistanceY", 2, 3, 1, 3, 32.0))
sketch11.addConstraint(Sketcher.Constraint("DistanceY", -1, 1, 0, 3, 83.512508))
pocket6 = body.newObject("PartDesign::Pocket", "Pocket005")
pocket6.Profile = sketch11
pocket6.Length = 1
pocket6.Reversed = True

# Sketch on YZ plane
sketch12 = body.newObject("Sketcher::SketchObject", "Sketch011")
sketch12.AttachmentSupport = (doc.getObject("YZ_Plane"), [""])
sketch12.MapMode = "FlatFace"
add_polygon(sketch12, [(0, 5), (0, -2.75), (12, 5)])  # lines 0-2
sketch12.addConstraint(Sketcher.Constraint("Vertical", 0))
sketch12.addConstraint(Sketcher.Constraint("Horizontal", 2))
sketch12.addConstraint(Sketcher.Constraint("PointOnObject", 0, 2, -2))
sketch12.addConstraint(Sketcher.Constraint("DistanceX", 2, 2, 2, 1, 12.0))
sketch12.addConstraint(Sketcher.Constraint("DistanceY", -1, 1, 1, 2, 5.0))
sketch12.addConstraint(Sketcher.Constraint("DistanceY", 0, 2, 0, 1, 7.75))
pocket7 = body.newObject("PartDesign::Pocket", "Pocket006")
pocket7.Profile = sketch12
pocket7.Length = 15
pocket7.Midplane = True

doc.recompute()
